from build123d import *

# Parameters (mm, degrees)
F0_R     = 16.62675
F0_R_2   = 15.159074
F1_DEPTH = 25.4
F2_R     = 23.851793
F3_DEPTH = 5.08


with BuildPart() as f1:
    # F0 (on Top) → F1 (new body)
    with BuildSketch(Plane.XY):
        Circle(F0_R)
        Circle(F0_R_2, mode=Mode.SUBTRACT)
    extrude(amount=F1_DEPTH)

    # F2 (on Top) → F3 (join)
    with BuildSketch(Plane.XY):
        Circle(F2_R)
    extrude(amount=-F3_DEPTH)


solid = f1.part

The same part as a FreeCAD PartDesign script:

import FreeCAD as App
import Part
import Sketcher
from FreeCAD import Vector
Q = App.Units.Quantity

doc = App.newDocument("Part")
body = doc.addObject("PartDesign::Body", "Body")

# Sketch on XY plane
sketch1 = body.newObject("Sketcher::SketchObject", "Sketch")
sketch1.AttachmentSupport = (doc.getObject("XY_Plane"), [""])
sketch1.MapMode = "FlatFace"
sketch1.addGeometry(Part.Circle(Vector(0, 0, 0), Vector(0, 0, 1), 17), False)
sketch1.addGeometry(Part.Circle(Vector(0, 0, 0), Vector(0, 0, 1), 15), False)
sketch1.addConstraint(Sketcher.Constraint("Coincident", 0, 3, -1, 1))
sketch1.addConstraint(Sketcher.Constraint("Coincident", 1, 3, -1, 1))
sketch1.addConstraint(Sketcher.Constraint("Diameter", 0, Q("33.2535 mm")))
sketch1.addConstraint(Sketcher.Constraint("Diameter", 1, Q("30.318148 mm")))
pad1 = body.newObject("PartDesign::Pad", "Pad")
pad1.Profile = sketch1
pad1.Length = Q("1 in")

# Sketch on XY plane
sketch2 = body.newObject("Sketcher::SketchObject", "Sketch001")
sketch2.AttachmentSupport = (doc.getObject("XY_Plane"), [""])
sketch2.MapMode = "FlatFace"
sketch2.addGeometry(Part.Circle(Vector(0, 0, 0), Vector(0, 0, 1), 24), False)
sketch2.addConstraint(Sketcher.Constraint("Coincident", 0, 3, -1, 1))
sketch2.addConstraint(Sketcher.Constraint("Diameter", 0, Q("47.703586 mm")))
pad2 = body.newObject("PartDesign::Pad", "Pad001")
pad2.Profile = sketch2
pad2.Length = Q("0.2 in")
pad2.Reversed = True

doc.recompute()
